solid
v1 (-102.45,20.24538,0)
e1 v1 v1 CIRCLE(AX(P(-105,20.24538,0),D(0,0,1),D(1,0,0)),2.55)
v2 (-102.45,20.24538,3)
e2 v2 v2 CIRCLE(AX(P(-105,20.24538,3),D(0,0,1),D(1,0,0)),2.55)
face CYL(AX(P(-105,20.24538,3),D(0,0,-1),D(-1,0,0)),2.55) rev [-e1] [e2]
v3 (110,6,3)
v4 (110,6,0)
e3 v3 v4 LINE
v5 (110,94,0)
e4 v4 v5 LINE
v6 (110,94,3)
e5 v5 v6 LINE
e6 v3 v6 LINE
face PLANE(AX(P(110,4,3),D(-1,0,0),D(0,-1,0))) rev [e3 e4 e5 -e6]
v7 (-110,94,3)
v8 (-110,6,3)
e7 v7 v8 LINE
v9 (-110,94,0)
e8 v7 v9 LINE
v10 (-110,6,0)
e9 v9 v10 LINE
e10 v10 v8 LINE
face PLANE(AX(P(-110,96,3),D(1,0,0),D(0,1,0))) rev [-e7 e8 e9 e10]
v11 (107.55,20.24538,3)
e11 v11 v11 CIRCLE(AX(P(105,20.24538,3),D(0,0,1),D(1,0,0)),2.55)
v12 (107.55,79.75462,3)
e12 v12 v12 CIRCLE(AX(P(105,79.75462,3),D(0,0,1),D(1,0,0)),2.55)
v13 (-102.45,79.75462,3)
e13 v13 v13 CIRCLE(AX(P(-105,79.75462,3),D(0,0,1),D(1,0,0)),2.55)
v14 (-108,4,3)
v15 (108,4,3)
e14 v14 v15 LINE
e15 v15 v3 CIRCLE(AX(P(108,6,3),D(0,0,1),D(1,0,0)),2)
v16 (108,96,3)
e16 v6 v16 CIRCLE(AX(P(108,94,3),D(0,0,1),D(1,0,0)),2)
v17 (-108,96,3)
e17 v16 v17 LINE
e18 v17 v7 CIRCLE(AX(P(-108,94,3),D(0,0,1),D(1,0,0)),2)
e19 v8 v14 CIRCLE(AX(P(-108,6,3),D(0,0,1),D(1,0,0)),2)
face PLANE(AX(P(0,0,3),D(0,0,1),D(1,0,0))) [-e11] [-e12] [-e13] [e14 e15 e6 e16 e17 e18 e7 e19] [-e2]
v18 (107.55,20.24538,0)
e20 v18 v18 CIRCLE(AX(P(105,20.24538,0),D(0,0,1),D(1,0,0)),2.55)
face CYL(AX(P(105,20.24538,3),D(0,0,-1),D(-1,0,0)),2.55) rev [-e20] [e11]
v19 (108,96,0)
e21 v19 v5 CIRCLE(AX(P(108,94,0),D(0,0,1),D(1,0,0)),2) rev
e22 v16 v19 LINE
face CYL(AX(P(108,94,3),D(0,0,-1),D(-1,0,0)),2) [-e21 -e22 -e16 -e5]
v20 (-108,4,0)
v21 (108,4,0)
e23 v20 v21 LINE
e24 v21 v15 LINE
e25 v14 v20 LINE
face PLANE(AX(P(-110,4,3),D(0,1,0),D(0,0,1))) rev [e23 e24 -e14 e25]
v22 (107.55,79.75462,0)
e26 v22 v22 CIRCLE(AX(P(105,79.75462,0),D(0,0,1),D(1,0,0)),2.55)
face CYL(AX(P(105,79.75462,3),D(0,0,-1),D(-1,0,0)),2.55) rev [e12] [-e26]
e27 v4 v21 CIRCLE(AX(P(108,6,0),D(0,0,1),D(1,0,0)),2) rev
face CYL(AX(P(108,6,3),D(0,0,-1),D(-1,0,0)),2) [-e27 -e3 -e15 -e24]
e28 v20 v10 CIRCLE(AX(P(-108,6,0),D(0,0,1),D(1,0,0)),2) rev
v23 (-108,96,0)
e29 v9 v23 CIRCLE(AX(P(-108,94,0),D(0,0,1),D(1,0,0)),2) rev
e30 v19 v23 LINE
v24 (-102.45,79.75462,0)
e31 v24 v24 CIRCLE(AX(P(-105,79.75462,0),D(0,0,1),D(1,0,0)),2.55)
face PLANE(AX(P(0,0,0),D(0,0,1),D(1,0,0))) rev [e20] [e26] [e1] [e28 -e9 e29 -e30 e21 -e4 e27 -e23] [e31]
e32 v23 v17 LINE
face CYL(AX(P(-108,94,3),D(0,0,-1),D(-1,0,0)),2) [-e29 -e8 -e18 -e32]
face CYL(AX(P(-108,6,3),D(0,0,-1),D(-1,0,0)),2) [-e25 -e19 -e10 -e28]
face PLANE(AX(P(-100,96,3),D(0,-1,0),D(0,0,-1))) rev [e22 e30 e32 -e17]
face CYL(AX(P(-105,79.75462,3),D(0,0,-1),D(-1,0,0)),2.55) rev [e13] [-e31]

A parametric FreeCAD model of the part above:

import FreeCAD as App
import Part
import Sketcher
from FreeCAD import Vector


def edges_at(feature, points):
    """Names of the edges that pass closest to the given points."""
    edges = feature.Shape.Edges
    near = lambda p: min(range(len(edges)), key=lambda i: edges[i].distToShape(Part.Vertex(*p))[0])
    return sorted({f"Edge{near(p) + 1}" for p in points})

doc = App.newDocument("Part")
body = doc.addObject("PartDesign::Body", "Body")

# Sketch on XY plane
sketch1 = body.newObject("Sketcher::SketchObject", "Sketch")
sketch1.AttachmentSupport = (doc.getObject("XY_Plane"), [""])
sketch1.MapMode = "FlatFace"
sketch1.addGeometry([
    Part.LineSegment(Vector(110, 96, 0), Vector(-110, 96, 0)),  # 0
    Part.LineSegment(Vector(-110, 96, 0), Vector(-110, 4, 0)),  # 1
    Part.LineSegment(Vector(-110, 4, 0), Vector(110, 4, 0)),  # 2
    Part.LineSegment(Vector(110, 4, 0), Vector(110, 96, 0)),  # 3
    Part.Circle(Vector(105, 20.24538, 0), Vector(0, 0, 1), 2.55),  # 4
    Part.Circle(Vector(-105, 20.24538, 0), Vector(0, 0, 1), 2.55),  # 5
    Part.Circle(Vector(105, 79.75462, 0), Vector(0, 0, 1), 2.55),  # 6
    Part.Circle(Vector(-105, 79.75462, 0), Vector(0, 0, 1), 2.55),  # 7
], False)
sketch1.addConstraint([
    Sketcher.Constraint("Coincident", 0, 2, 1, 1),
    Sketcher.Constraint("Coincident", 1, 2, 2, 1),
    Sketcher.Constraint("Coincident", 2, 2, 3, 1),
    Sketcher.Constraint("Coincident", 3, 2, 0, 1),
    Sketcher.Constraint("Horizontal", 0),
    Sketcher.Constraint("Vertical", 1),
    Sketcher.Constraint("Horizontal", 2),
    Sketcher.Constraint("Vertical", 3),
    Sketcher.Constraint("Equal", 4, 5),
    Sketcher.Constraint("Equal", 5, 6),
    Sketcher.Constraint("Equal", 6, 7),
    Sketcher.Constraint("Symmetric", 4, 3, 5, 3, -2),
    Sketcher.Constraint("Symmetric", 6, 3, 7, 3, -2),
    Sketcher.Constraint("Vertical", 4, 3, 6, 3),
    Sketcher.Constraint("Diameter", 4, 5.1),
    Sketcher.Constraint("DistanceX", 0, 2, 0, 1, 220.0),
    Sketcher.Constraint("DistanceY", 1, 2, 1, 1, 92.0),
    Sketcher.Constraint("DistanceX", -1, 1, 4, 3, 105.0),
    Sketcher.Constraint("DistanceX", 0, 2, -1, 1, 110.0),
    Sketcher.Constraint("DistanceY", -1, 1, 0, 2, 96.0),
    Sketcher.Constraint("DistanceY", -1, 1, 4, 3, 20.24538),
    Sketcher.Constraint("DistanceY", -1, 1, 6, 3, 79.75462),
])
pad1 = body.newObject("PartDesign::Pad", "Pad")
pad1.Profile = sketch1
pad1.Length = 3
doc.recompute()

fillet = body.newObject("PartDesign::Fillet", "Fillet")
fillet.Base = (pad1, edges_at(pad1, [
    (110, 4, 1.5),
    (-110, 4, 1.5),
    (-110, 96, 1.5),
    (110, 96, 1.5),
]))
fillet.Radius = 2

doc.recompute()
